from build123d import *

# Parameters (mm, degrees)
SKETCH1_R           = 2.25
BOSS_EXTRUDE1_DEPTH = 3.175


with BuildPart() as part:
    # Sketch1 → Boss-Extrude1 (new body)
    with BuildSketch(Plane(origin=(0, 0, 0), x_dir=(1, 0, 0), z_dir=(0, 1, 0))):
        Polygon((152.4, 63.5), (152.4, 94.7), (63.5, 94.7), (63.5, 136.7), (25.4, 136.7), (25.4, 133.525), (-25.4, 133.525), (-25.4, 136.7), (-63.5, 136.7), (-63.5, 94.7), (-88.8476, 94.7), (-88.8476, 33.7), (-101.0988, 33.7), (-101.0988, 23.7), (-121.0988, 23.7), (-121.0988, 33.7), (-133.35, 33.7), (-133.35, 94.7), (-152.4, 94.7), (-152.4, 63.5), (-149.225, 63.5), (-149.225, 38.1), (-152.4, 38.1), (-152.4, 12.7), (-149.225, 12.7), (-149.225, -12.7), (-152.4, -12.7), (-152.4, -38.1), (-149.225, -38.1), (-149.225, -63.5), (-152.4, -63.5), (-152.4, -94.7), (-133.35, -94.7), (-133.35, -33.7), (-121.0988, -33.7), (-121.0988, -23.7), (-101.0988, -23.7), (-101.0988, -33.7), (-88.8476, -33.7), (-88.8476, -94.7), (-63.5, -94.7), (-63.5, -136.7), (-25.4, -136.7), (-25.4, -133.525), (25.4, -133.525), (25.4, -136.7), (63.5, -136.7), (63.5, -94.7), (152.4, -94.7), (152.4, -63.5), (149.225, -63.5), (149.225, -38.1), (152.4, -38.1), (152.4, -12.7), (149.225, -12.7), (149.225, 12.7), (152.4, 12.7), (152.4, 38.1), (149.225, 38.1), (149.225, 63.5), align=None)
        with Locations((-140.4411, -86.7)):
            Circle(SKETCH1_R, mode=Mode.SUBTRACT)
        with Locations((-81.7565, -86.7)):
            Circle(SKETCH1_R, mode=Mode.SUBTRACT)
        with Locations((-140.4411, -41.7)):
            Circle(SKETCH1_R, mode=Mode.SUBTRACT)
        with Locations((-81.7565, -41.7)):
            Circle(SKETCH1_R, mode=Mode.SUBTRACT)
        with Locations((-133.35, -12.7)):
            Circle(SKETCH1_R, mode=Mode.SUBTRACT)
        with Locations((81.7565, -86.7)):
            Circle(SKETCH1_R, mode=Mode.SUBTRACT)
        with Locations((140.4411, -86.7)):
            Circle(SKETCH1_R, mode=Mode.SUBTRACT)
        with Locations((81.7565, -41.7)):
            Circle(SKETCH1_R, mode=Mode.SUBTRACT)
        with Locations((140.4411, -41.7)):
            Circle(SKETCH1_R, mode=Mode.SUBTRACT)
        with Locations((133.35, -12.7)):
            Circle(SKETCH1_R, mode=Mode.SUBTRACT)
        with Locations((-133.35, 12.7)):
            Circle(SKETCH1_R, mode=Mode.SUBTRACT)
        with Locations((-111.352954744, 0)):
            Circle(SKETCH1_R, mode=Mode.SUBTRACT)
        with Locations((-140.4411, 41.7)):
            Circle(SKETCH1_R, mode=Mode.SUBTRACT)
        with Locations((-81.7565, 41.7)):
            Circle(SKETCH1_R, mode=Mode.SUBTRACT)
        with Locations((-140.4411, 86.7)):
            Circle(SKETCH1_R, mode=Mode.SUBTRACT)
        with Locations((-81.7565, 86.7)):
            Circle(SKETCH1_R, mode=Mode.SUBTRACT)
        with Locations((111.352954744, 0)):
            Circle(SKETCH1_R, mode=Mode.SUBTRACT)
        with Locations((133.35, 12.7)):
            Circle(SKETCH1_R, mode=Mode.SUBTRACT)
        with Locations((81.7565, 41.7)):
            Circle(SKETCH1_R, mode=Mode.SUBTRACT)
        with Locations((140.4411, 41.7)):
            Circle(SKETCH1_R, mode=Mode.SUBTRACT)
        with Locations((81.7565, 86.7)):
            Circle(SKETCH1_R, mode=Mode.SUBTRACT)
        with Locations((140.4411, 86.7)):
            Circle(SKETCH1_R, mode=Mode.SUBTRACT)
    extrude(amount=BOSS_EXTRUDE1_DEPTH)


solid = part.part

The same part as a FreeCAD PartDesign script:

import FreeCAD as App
import Part
import Sketcher
Q = App.Units.Quantity

doc = App.newDocument("Part")
params = doc.addObject("Spreadsheet::Sheet", "Params")
for row, (alias, value) in enumerate([
    ("sketch1_diameter", "4.5 mm"),
    ("sketch1_width", "20 mm"),
    ("sketch1_height", "42 mm"),
    ("sketch1_height2", "61 mm"),
    ("sketch1_height3", "10 mm"),
    ("pad1_length", "3.175 mm"),
], start=1):
    params.set(f"A{row}", alias)
    params.set(f"B{row}", "=" + value)
    params.setAlias(f"B{row}", alias)

body = doc.addObject("PartDesign::Body", "Body")

# Sketch on XZ plane
sketch1 = body.newObject("Sketcher::SketchObject", "Sketch")
sketch1.AttachmentSupport = (doc.getObject("XZ_Plane"), [""])
sketch1.MapMode = "FlatFace"
sketch1.addGeometry(Part.LineSegment(App.Vector(152.4, -63.5, 0), App.Vector(152.4, -94.7, 0)), False)
sketch1.addGeometry(Part.LineSegment(App.Vector(152.4, -94.7, 0), App.Vector(63.5, -94.7, 0)), False)
sketch1.addGeometry(Part.LineSegment(App.Vector(63.5, -94.7, 0), App.Vector(63.5, -136.7, 0)), False)
sketch1.addGeometry(Part.LineSegment(App.Vector(63.5, -136.7, 0), App.Vector(25.4, -136.7, 0)), False)
sketch1.addGeometry(Part.LineSegment(App.Vector(25.4, -136.7, 0), App.Vector(25.4, -133.5, 0)), False)
sketch1.addGeometry(Part.LineSegment(App.Vector(25.4, -133.5, 0), App.Vector(-25.4, -133.5, 0)), False)
sketch1.addGeometry(Part.LineSegment(App.Vector(-25.4, -133.5, 0), App.Vector(-25.4, -136.7, 0)), False)
sketch1.addGeometry(Part.LineSegment(App.Vector(-25.4, -136.7, 0), App.Vector(-63.5, -136.7, 0)), False)
sketch1.addGeometry(Part.LineSegment(App.Vector(-63.5, -136.7, 0), App.Vector(-63.5, -94.7, 0)), False)
sketch1.addGeometry(Part.LineSegment(App.Vector(-63.5, -94.7, 0), App.Vector(-88.8, -94.7, 0)), False)
sketch1.addGeometry(Part.LineSegment(App.Vector(-88.8, -94.7, 0), App.Vector(-88.8, -33.7, 0)), False)
sketch1.addGeometry(Part.LineSegment(App.Vector(-88.8, -33.7, 0), App.Vector(-101.1, -33.7, 0)), False)
sketch1.addGeometry(Part.LineSegment(App.Vector(-101.1, -33.7, 0), App.Vector(-101.1, -23.7, 0)), False)
sketch1.addGeometry(Part.LineSegment(App.Vector(-101.1, -23.7, 0), App.Vector(-121.1, -23.7, 0)), False)
sketch1.addGeometry(Part.LineSegment(App.Vector(-121.1, -23.7, 0), App.Vector(-121.1, -33.7, 0)), False)
sketch1.addGeometry(Part.LineSegment(App.Vector(-121.1, -33.7, 0), App.Vector(-133.3, -33.7, 0)), False)
sketch1.addGeometry(Part.LineSegment(App.Vector(-133.3, -33.7, 0), App.Vector(-133.3, -94.7, 0)), False)
sketch1.addGeometry(Part.LineSegment(App.Vector(-133.3, -94.7, 0), App.Vector(-152.4, -94.7, 0)), False)
sketch1.addGeometry(Part.LineSegment(App.Vector(-152.4, -94.7, 0), App.Vector(-152.4, -63.5, 0)), False)
sketch1.addGeometry(Part.LineSegment(App.Vector(-152.4, -63.5, 0), App.Vector(-149.2, -63.5, 0)), False)
sketch1.addGeometry(Part.LineSegment(App.Vector(-149.2, -63.5, 0), App.Vector(-149.2, -38.1, 0)), False)
sketch1.addGeometry(Part.LineSegment(App.Vector(-149.2, -38.1, 0), App.Vector(-152.4, -38.1, 0)), False)
sketch1.addGeometry(Part.LineSegment(App.Vector(-152.4, -38.1, 0), App.Vector(-152.4, -12.7, 0)), False)
sketch1.addGeometry(Part.LineSegment(App.Vector(-152.4, -12.7, 0), App.Vector(-149.2, -12.7, 0)), False)
sketch1.addGeometry(Part.LineSegment(App.Vector(-149.2, -12.7, 0), App.Vector(-149.2, 12.7, 0)), False)
sketch1.addGeometry(Part.LineSegment(App.Vector(-149.2, 12.7, 0), App.Vector(-152.4, 12.7, 0)), False)
sketch1.addGeometry(Part.LineSegment(App.Vector(-152.4, 12.7, 0), App.Vector(-152.4, 38.1, 0)), False)
sketch1.addGeometry(Part.LineSegment(App.Vector(-152.4, 38.1, 0), App.Vector(-149.2, 38.1, 0)), False)
sketch1.addGeometry(Part.LineSegment(App.Vector(-149.2, 38.1, 0), App.Vector(-149.2, 63.5, 0)), False)
sketch1.addGeometry(Part.LineSegment(App.Vector(-149.2, 63.5, 0), App.Vector(-152.4, 63.5, 0)), False)
sketch1.addGeometry(Part.LineSegment(App.Vector(-152.4, 63.5, 0), App.Vector(-152.4, 94.7, 0)), False)
sketch1.addGeometry(Part.LineSegment(App.Vector(-152.4, 94.7, 0), App.Vector(-133.3, 94.7, 0)), False)
sketch1.addGeometry(Part.LineSegment(App.Vector(-133.3, 94.7, 0), App.Vector(-133.3, 33.7, 0)), False)
sketch1.addGeometry(Part.LineSegment(App.Vector(-133.3, 33.7, 0), App.Vector(-121.1, 33.7, 0)), False)
sketch1.addGeometry(Part.LineSegment(App.Vector(-121.1, 33.7, 0), App.Vector(-121.1, 23.7, 0)), False)
sketch1.addGeometry(Part.LineSegment(App.Vector(-121.1, 23.7, 0), App.Vector(-101.1, 23.7, 0)), False)
sketch1.addGeometry(Part.LineSegment(App.Vector(-101.1, 23.7, 0), App.Vector(-101.1, 33.7, 0)), False)
sketch1.addGeometry(Part.LineSegment(App.Vector(-101.1, 33.7, 0), App.Vector(-88.8, 33.7, 0)), False)
sketch1.addGeometry(Part.LineSegment(App.Vector(-88.8, 33.7, 0), App.Vector(-88.8, 94.7, 0)), False)
sketch1.addGeometry(Part.LineSegment(App.Vector(-88.8, 94.7, 0), App.Vector(-63.5, 94.7, 0)), False)
sketch1.addGeometry(Part.LineSegment(App.Vector(-63.5, 94.7, 0), App.Vector(-63.5, 136.7, 0)), False)
sketch1.addGeometry(Part.LineSegment(App.Vector(-63.5, 136.7, 0), App.Vector(-25.4, 136.7, 0)), False)
sketch1.addGeometry(Part.LineSegment(App.Vector(-25.4, 136.7, 0), App.Vector(-25.4, 133.5, 0)), False)
sketch1.addGeometry(Part.LineSegment(App.Vector(-25.4, 133.5, 0), App.Vector(25.4, 133.5, 0)), False)
sketch1.addGeometry(Part.LineSegment(App.Vector(25.4, 133.5, 0), App.Vector(25.4, 136.7, 0)), False)
sketch1.addGeometry(Part.LineSegment(App.Vector(25.4, 136.7, 0), App.Vector(63.5, 136.7, 0)), False)
sketch1.addGeometry(Part.LineSegment(App.Vector(63.5, 136.7, 0), App.Vector(63.5, 94.7, 0)), False)
sketch1.addGeometry(Part.LineSegment(App.Vector(63.5, 94.7, 0), App.Vector(152.4, 94.7, 0)), False)
sketch1.addGeometry(Part.LineSegment(App.Vector(152.4, 94.7, 0), App.Vector(152.4, 63.5, 0)), False)
sketch1.addGeometry(Part.LineSegment(App.Vector(152.4, 63.5, 0), App.Vector(149.2, 63.5, 0)), False)
sketch1.addGeometry(Part.LineSegment(App.Vector(149.2, 63.5, 0), App.Vector(149.2, 38.1, 0)), False)
sketch1.addGeometry(Part.LineSegment(App.Vector(149.2, 38.1, 0), App.Vector(152.4, 38.1, 0)), False)
sketch1.addGeometry(Part.LineSegment(App.Vector(152.4, 38.1, 0), App.Vector(152.4, 12.7, 0)), False)
sketch1.addGeometry(Part.LineSegment(App.Vector(152.4, 12.7, 0), App.Vector(149.2, 12.7, 0)), False)
sketch1.addGeometry(Part.LineSegment(App.Vector(149.2, 12.7, 0), App.Vector(149.2, -12.7, 0)), False)
sketch1.addGeometry(Part.LineSegment(App.Vector(149.2, -12.7, 0), App.Vector(152.4, -12.7, 0)), False)
sketch1.addGeometry(Part.LineSegment(App.Vector(152.4, -12.7, 0), App.Vector(152.4, -38.1, 0)), False)
sketch1.addGeometry(Part.LineSegment(App.Vector(152.4, -38.1, 0), App.Vector(149.2, -38.1, 0)), False)
sketch1.addGeometry(Part.LineSegment(App.Vector(149.2, -38.1, 0), App.Vector(149.2, -63.5, 0)), False)
sketch1.addGeometry(Part.LineSegment(App.Vector(149.2, -63.5, 0), App.Vector(152.4, -63.5, 0)), False)
sketch1.addGeometry(Part.Circle(App.Vector(-140.4, 86.7, 0), App.Vector(0, 0, 1), 2.2), False)
sketch1.addGeometry(Part.Circle(App.Vector(-81.8, 86.7, 0), App.Vector(0, 0, 1), 2.2), False)
sketch1.addGeometry(Part.Circle(App.Vector(-140.4, 41.7, 0), App.Vector(0, 0, 1), 2.2), False)
sketch1.addGeometry(Part.Circle(App.Vector(-81.8, 41.7, 0), App.Vector(0, 0, 1), 2.2), False)
sketch1.addGeometry(Part.Circle(App.Vector(-133.3, 12.7, 0), App.Vector(0, 0, 1), 2.2), False)
sketch1.addGeometry(Part.Circle(App.Vector(-111.4, 0, 0), App.Vector(0, 0, 1), 2.2), False)
sketch1.addGeometry(Part.Circle(App.Vector(81.8, 86.7, 0), App.Vector(0, 0, 1), 2.2), False)
sketch1.addGeometry(Part.Circle(App.Vector(140.4, 86.7, 0), App.Vector(0, 0, 1), 2.2), False)
sketch1.addGeometry(Part.Circle(App.Vector(81.8, 41.7, 0), App.Vector(0, 0, 1), 2.2), False)
sketch1.addGeometry(Part.Circle(App.Vector(140.4, 41.7, 0), App.Vector(0, 0, 1), 2.2), False)
sketch1.addGeometry(Part.Circle(App.Vector(133.3, 12.7, 0), App.Vector(0, 0, 1), 2.2), False)
sketch1.addGeometry(Part.Circle(App.Vector(111.4, 0, 0), App.Vector(0, 0, 1), 2.2), False)
sketch1.addGeometry(Part.Circle(App.Vector(-133.3, -12.7, 0), App.Vector(0, 0, 1), 2.2), False)
sketch1.addGeometry(Part.Circle(App.Vector(-140.4, -41.7, 0), App.Vector(0, 0, 1), 2.2), False)
sketch1.addGeometry(Part.Circle(App.Vector(-81.8, -41.7, 0), App.Vector(0, 0, 1), 2.2), False)
sketch1.addGeometry(Part.Circle(App.Vector(-140.4, -86.7, 0), App.Vector(0, 0, 1), 2.2), False)
sketch1.addGeometry(Part.Circle(App.Vector(-81.8, -86.7, 0), App.Vector(0, 0, 1), 2.2), False)
sketch1.addGeometry(Part.Circle(App.Vector(133.3, -12.7, 0), App.Vector(0, 0, 1), 2.2), False)
sketch1.addGeometry(Part.Circle(App.Vector(81.8, -41.7, 0), App.Vector(0, 0, 1), 2.2), False)
sketch1.addGeometry(Part.Circle(App.Vector(140.4, -41.7, 0), App.Vector(0, 0, 1), 2.2), False)
sketch1.addGeometry(Part.Circle(App.Vector(81.8, -86.7, 0), App.Vector(0, 0, 1), 2.2), False)
sketch1.addGeometry(Part.Circle(App.Vector(140.4, -86.7, 0), App.Vector(0, 0, 1), 2.2), False)
sketch1.addConstraint(Sketcher.Constraint("Coincident", 0, 2, 1, 1))
sketch1.addConstraint(Sketcher.Constraint("Coincident", 1, 2, 2, 1))
sketch1.addConstraint(Sketcher.Constraint("Coincident", 2, 2, 3, 1))
sketch1.addConstraint(Sketcher.Constraint("Coincident", 3, 2, 4, 1))
sketch1.addConstraint(Sketcher.Constraint("Coincident", 4, 2, 5, 1))
sketch1.addConstraint(Sketcher.Constraint("Coincident", 5, 2, 6, 1))
sketch1.addConstraint(Sketcher.Constraint("Coincident", 6, 2, 7, 1))
sketch1.addConstraint(Sketcher.Constraint("Coincident", 7, 2, 8, 1))
sketch1.addConstraint(Sketcher.Constraint("Coincident", 8, 2, 9, 1))
sketch1.addConstraint(Sketcher.Constraint("Coincident", 9, 2, 10, 1))
sketch1.addConstraint(Sketcher.Constraint("Coincident", 10, 2, 11, 1))
sketch1.addConstraint(Sketcher.Constraint("Coincident", 11, 2, 12, 1))
sketch1.addConstraint(Sketcher.Constraint("Coincident", 12, 2, 13, 1))
sketch1.addConstraint(Sketcher.Constraint("Coincident", 13, 2, 14, 1))
sketch1.addConstraint(Sketcher.Constraint("Coincident", 14, 2, 15, 1))
sketch1.addConstraint(Sketcher.Constraint("Coincident", 15, 2, 16, 1))
sketch1.addConstraint(Sketcher.Constraint("Coincident", 16, 2, 17, 1))
sketch1.addConstraint(Sketcher.Constraint("Coincident", 17, 2, 18, 1))
sketch1.addConstraint(Sketcher.Constraint("Coincident", 18, 2, 19, 1))
sketch1.addConstraint(Sketcher.Constraint("Coincident", 19, 2, 20, 1))
sketch1.addConstraint(Sketcher.Constraint("Coincident", 20, 2, 21, 1))
sketch1.addConstraint(Sketcher.Constraint("Coincident", 21, 2, 22, 1))
sketch1.addConstraint(Sketcher.Constraint("Coincident", 22, 2, 23, 1))
sketch1.addConstraint(Sketcher.Constraint("Coincident", 23, 2, 24, 1))
sketch1.addConstraint(Sketcher.Constraint("Coincident", 24, 2, 25, 1))
sketch1.addConstraint(Sketcher.Constraint("Coincident", 25, 2, 26, 1))
sketch1.addConstraint(Sketcher.Constraint("Coincident", 26, 2, 27, 1))
sketch1.addConstraint(Sketcher.Constraint("Coincident", 27, 2, 28, 1))
sketch1.addConstraint(Sketcher.Constraint("Coincident", 28, 2, 29, 1))
sketch1.addConstraint(Sketcher.Constraint("Coincident", 29, 2, 30, 1))
sketch1.addConstraint(Sketcher.Constraint("Coincident", 30, 2, 31, 1))
sketch1.addConstraint(Sketcher.Constraint("Coincident", 31, 2, 32, 1))
sketch1.addConstraint(Sketcher.Constraint("Coincident", 32, 2, 33, 1))
sketch1.addConstraint(Sketcher.Constraint("Coincident", 33, 2, 34, 1))
sketch1.addConstraint(Sketcher.Constraint("Coincident", 34, 2, 35, 1))
sketch1.addConstraint(Sketcher.Constraint("Coincident", 35, 2, 36, 1))
sketch1.addConstraint(Sketcher.Constraint("Coincident", 36, 2, 37, 1))
sketch1.addConstraint(Sketcher.Constraint("Coincident", 37, 2, 38, 1))
sketch1.addConstraint(Sketcher.Constraint("Coincident", 38, 2, 39, 1))
sketch1.addConstraint(Sketcher.Constraint("Coincident", 39, 2, 40, 1))
sketch1.addConstraint(Sketcher.Constraint("Coincident", 40, 2, 41, 1))
sketch1.addConstraint(Sketcher.Constraint("Coincident", 41, 2, 42, 1))
sketch1.addConstraint(Sketcher.Constraint("Coincident", 42, 2, 43, 1))
sketch1.addConstraint(Sketcher.Constraint("Coincident", 43, 2, 44, 1))
sketch1.addConstraint(Sketcher.Constraint("Coincident", 44, 2, 45, 1))
sketch1.addConstraint(Sketcher.Constraint("Coincident", 45, 2, 46, 1))
sketch1.addConstraint(Sketcher.Constraint("Coincident", 46, 2, 47, 1))
sketch1.addConstraint(Sketcher.Constraint("Coincident", 47, 2, 48, 1))
sketch1.addConstraint(Sketcher.Constraint("Coincident", 48, 2, 49, 1))
sketch1.addConstraint(Sketcher.Constraint("Coincident", 49, 2, 50, 1))
sketch1.addConstraint(Sketcher.Constraint("Coincident", 50, 2, 51, 1))
sketch1.addConstraint(Sketcher.Constraint("Coincident", 51, 2, 52, 1))
sketch1.addConstraint(Sketcher.Constraint("Coincident", 52, 2, 53, 1))
sketch1.addConstraint(Sketcher.Constraint("Coincident", 53, 2, 54, 1))
sketch1.addConstraint(Sketcher.Constraint("Coincident", 54, 2, 55, 1))
sketch1.addConstraint(Sketcher.Constraint("Coincident", 55, 2, 56, 1))
sketch1.addConstraint(Sketcher.Constraint("Coincident", 56, 2, 57, 1))
sketch1.addConstraint(Sketcher.Constraint("Coincident", 57, 2, 58, 1))
sketch1.addConstraint(Sketcher.Constraint("Coincident", 58, 2, 59, 1))
sketch1.addConstraint(Sketcher.Constraint("Coincident", 59, 2, 0, 1))
sketch1.addConstraint(Sketcher.Constraint("Vertical", 0))
sketch1.addConstraint(Sketcher.Constraint("Horizontal", 1))
sketch1.addConstraint(Sketcher.Constraint("Vertical", 2))
sketch1.addConstraint(Sketcher.Constraint("Horizontal", 3))
sketch1.addConstraint(Sketcher.Constraint("Vertical", 4))
sketch1.addConstraint(Sketcher.Constraint("Horizontal", 5))
sketch1.addConstraint(Sketcher.Constraint("Vertical", 6))
sketch1.addConstraint(Sketcher.Constraint("Horizontal", 7))
sketch1.addConstraint(Sketcher.Constraint("Vertical", 8))
sketch1.addConstraint(Sketcher.Constraint("Horizontal", 9))
sketch1.addConstraint(Sketcher.Constraint("Vertical", 10))
sketch1.addConstraint(Sketcher.Constraint("Horizontal", 11))
sketch1.addConstraint(Sketcher.Constraint("Vertical", 12))
sketch1.addConstraint(Sketcher.Constraint("Horizontal", 13))
sketch1.addConstraint(Sketcher.Constraint("Vertical", 14))
sketch1.addConstraint(Sketcher.Constraint("Horizontal", 15))
sketch1.addConstraint(Sketcher.Constraint("Vertical", 16))
sketch1.addConstraint(Sketcher.Constraint("Horizontal", 17))
sketch1.addConstraint(Sketcher.Constraint("Vertical", 18))
sketch1.addConstraint(Sketcher.Constraint("Horizontal", 19))
sketch1.addConstraint(Sketcher.Constraint("Vertical", 20))
sketch1.addConstraint(Sketcher.Constraint("Horizontal", 21))
sketch1.addConstraint(Sketcher.Constraint("Vertical", 22))
sketch1.addConstraint(Sketcher.Constraint("Horizontal", 23))
sketch1.addConstraint(Sketcher.Constraint("Vertical", 24))
sketch1.addConstraint(Sketcher.Constraint("Horizontal", 25))
sketch1.addConstraint(Sketcher.Constraint("Vertical", 26))
sketch1.addConstraint(Sketcher.Constraint("Horizontal", 27))
sketch1.addConstraint(Sketcher.Constraint("Vertical", 28))
sketch1.addConstraint(Sketcher.Constraint("Horizontal", 29))
sketch1.addConstraint(Sketcher.Constraint("Vertical", 30))
sketch1.addConstraint(Sketcher.Constraint("Horizontal", 31))
sketch1.addConstraint(Sketcher.Constraint("Vertical", 32))
sketch1.addConstraint(Sketcher.Constraint("Horizontal", 33))
sketch1.addConstraint(Sketcher.Constraint("Vertical", 34))
sketch1.addConstraint(Sketcher.Constraint("Horizontal", 35))
sketch1.addConstraint(Sketcher.Constraint("Vertical", 36))
sketch1.addConstraint(Sketcher.Constraint("Horizontal", 37))
sketch1.addConstraint(Sketcher.Constraint("Vertical", 38))
sketch1.addConstraint(Sketcher.Constraint("Horizontal", 39))
sketch1.addConstraint(Sketcher.Constraint("Vertical", 40))
sketch1.addConstraint(Sketcher.Constraint("Horizontal", 41))
sketch1.addConstraint(Sketcher.Constraint("Vertical", 42))
sketch1.addConstraint(Sketcher.Constraint("Horizontal", 43))
sketch1.addConstraint(Sketcher.Constraint("Vertical", 44))
sketch1.addConstraint(Sketcher.Constraint("Horizontal", 45))
sketch1.addConstraint(Sketcher.Constraint("Vertical", 46))
sketch1.addConstraint(Sketcher.Constraint("Horizontal", 47))
sketch1.addConstraint(Sketcher.Constraint("Vertical", 48))
sketch1.addConstraint(Sketcher.Constraint("Horizontal", 49))
sketch1.addConstraint(Sketcher.Constraint("Vertical", 50))
sketch1.addConstraint(Sketcher.Constraint("Horizontal", 51))
sketch1.addConstraint(Sketcher.Constraint("Vertical", 52))
sketch1.addConstraint(Sketcher.Constraint("Horizontal", 53))
sketch1.addConstraint(Sketcher.Constraint("Vertical", 54))
sketch1.addConstraint(Sketcher.Constraint("Horizontal", 55))
sketch1.addConstraint(Sketcher.Constraint("Vertical", 56))
sketch1.addConstraint(Sketcher.Constraint("Horizontal", 57))
sketch1.addConstraint(Sketcher.Constraint("Vertical", 58))
sketch1.addConstraint(Sketcher.Constraint("Horizontal", 59))
sketch1.addConstraint(Sketcher.Constraint("Equal", 60, 61))
sketch1.addConstraint(Sketcher.Constraint("Equal", 61, 62))
sketch1.addConstraint(Sketcher.Constraint("Equal", 62, 63))
sketch1.addConstraint(Sketcher.Constraint("Equal", 63, 64))
sketch1.addConstraint(Sketcher.Constraint("Equal", 64, 65))
sketch1.addConstraint(Sketcher.Constraint("Equal", 65, 66))
sketch1.addConstraint(Sketcher.Constraint("Equal", 66, 67))
sketch1.addConstraint(Sketcher.Constraint("Equal", 67, 68))
sketch1.addConstraint(Sketcher.Constraint("Equal", 68, 69))
sketch1.addConstraint(Sketcher.Constraint("Equal", 69, 70))
sketch1.addConstraint(Sketcher.Constraint("Equal", 70, 71))
sketch1.addConstraint(Sketcher.Constraint("Equal", 71, 72))
sketch1.addConstraint(Sketcher.Constraint("Equal", 72, 73))
sketch1.addConstraint(Sketcher.Constraint("Equal", 73, 74))
sketch1.addConstraint(Sketcher.Constraint("Equal", 74, 75))
sketch1.addConstraint(Sketcher.Constraint("Equal", 75, 76))
sketch1.addConstraint(Sketcher.Constraint("Equal", 76, 77))
sketch1.addConstraint(Sketcher.Constraint("Equal", 77, 78))
sketch1.addConstraint(Sketcher.Constraint("Equal", 78, 79))
sketch1.addConstraint(Sketcher.Constraint("Equal", 79, 80))
sketch1.addConstraint(Sketcher.Constraint("Equal", 80, 81))
sketch1.addConstraint(Sketcher.Constraint("Symmetric", 65, 3, 71, 3, -1, 1))
sketch1.addConstraint(Sketcher.Constraint("Symmetric", 70, 3, 72, 3, -1, 1))
sketch1.addConstraint(Sketcher.Constraint("Symmetric", 69, 3, 73, 3, -1, 1))
sketch1.addConstraint(Sketcher.Constraint("Symmetric", 68, 3, 74, 3, -1, 1))
sketch1.addConstraint(Sketcher.Constraint("Symmetric", 67, 3, 75, 3, -1, 1))
sketch1.addConstraint(Sketcher.Constraint("Symmetric", 66, 3, 76, 3, -1, 1))
sketch1.addConstraint(Sketcher.Constraint("Symmetric", 64, 3, 77, 3, -1, 1))
sketch1.addConstraint(Sketcher.Constraint("Symmetric", 63, 3, 78, 3, -1, 1))
sketch1.addConstraint(Sketcher.Constraint("Symmetric", 62, 3, 79, 3, -1, 1))
sketch1.addConstraint(Sketcher.Constraint("Symmetric", 61, 3, 80, 3, -1, 1))
sketch1.addConstraint(Sketcher.Constraint("Symmetric", 60, 3, 81, 3, -1, 1))
sketch1.addConstraint(Sketcher.Constraint("Symmetric", 0, 2, 30, 2, -1, 1))
sketch1.addConstraint(Sketcher.Constraint("Symmetric", 1, 2, 39, 2, -1, 1))
sketch1.addConstraint(Sketcher.Constraint("Symmetric", 3, 2, 41, 2, -1, 1))
sketch1.addConstraint(Sketcher.Constraint("Symmetric", 5, 2, 43, 2, -1, 1))
sketch1.addConstraint(Sketcher.Constraint("Symmetric", 7, 2, 45, 2, -1, 1))
sketch1.addConstraint(Sketcher.Constraint("Symmetric", 17, 2, 47, 2, -1, 1))
sketch1.addConstraint(Sketcher.Constraint("Symmetric", 19, 2, 49, 2, -1, 1))
sketch1.addConstraint(Sketcher.Constraint("Symmetric", 21, 2, 51, 2, -1, 1))
sketch1.addConstraint(Sketcher.Constraint("Symmetric", 23, 2, 53, 2, -1, 1))
sketch1.addConstraint(Sketcher.Constraint("Symmetric", 25, 2, 55, 2, -1, 1))
sketch1.addConstraint(Sketcher.Constraint("Symmetric", 27, 2, 57, 2, -1, 1))
sketch1.addConstraint(Sketcher.Constraint("Symmetric", 61, 3, 66, 3, -2))
sketch1.addConstraint(Sketcher.Constraint("Symmetric", 60, 3, 67, 3, -2))
sketch1.addConstraint(Sketcher.Constraint("Symmetric", 63, 3, 68, 3, -2))
sketch1.addConstraint(Sketcher.Constraint("Symmetric", 62, 3, 69, 3, -2))
sketch1.addConstraint(Sketcher.Constraint("Symmetric", 64, 3, 70, 3, -2))
sketch1.addConstraint(Sketcher.Constraint("Symmetric", 3, 2, 6, 2, -2))
sketch1.addConstraint(Sketcher.Constraint("Symmetric", 1, 2, 8, 2, -2))
sketch1.addConstraint(Sketcher.Constraint("Symmetric", 0, 2, 17, 2, -2))
sketch1.addConstraint(Sketcher.Constraint("Symmetric", 28, 2, 49, 2, -2))
sketch1.addConstraint(Sketcher.Constraint("Symmetric", 26, 2, 51, 2, -2))
sketch1.addConstraint(Sketcher.Constraint("Symmetric", 15, 2, 32, 2, -1))
sketch1.addConstraint(Sketcher.Constraint("Symmetric", 13, 2, 34, 2, -1))
sketch1.addConstraint(Sketcher.Constraint("Symmetric", 11, 2, 36, 2, -1))
sketch1.addConstraint(Sketcher.Constraint("PointOnObject", 65, 3, -1))
sketch1.addConstraint(Sketcher.Constraint("Horizontal", 60, 3, 61, 3))
sketch1.addConstraint(Sketcher.Constraint("Horizontal", 62, 3, 63, 3))
sketch1.addConstraint(Sketcher.Constraint("Horizontal", 11, 2, 14, 2))
sketch1.addConstraint(Sketcher.Constraint("Horizontal", 77, 3, 22, 2))
sketch1.addConstraint(Sketcher.Constraint("Horizontal", 70, 3, 24, 2))
sketch1.addConstraint(Sketcher.Constraint("Horizontal", 19, 2, 58, 2))
sketch1.addConstraint(Sketcher.Constraint("Vertical", 60, 3, 62, 3))
sketch1.addConstraint(Sketcher.Constraint("Vertical", 61, 3, 63, 3))
sketch1.addConstraint(Sketcher.Constraint("Vertical", 72, 3, 15, 2))
sketch1.addConstraint(Sketcher.Constraint("Vertical", 18, 2, 21, 2))
sketch1.addConstraint(Sketcher.Constraint("Vertical", 20, 2, 23, 2))
sketch1.addConstraint(Sketcher.Constraint("Vertical", 10, 2, 37, 2))
sketch1.addConstraint(Sketcher.Constraint("Equal", 11, 15))
sketch1.addConstraint(Sketcher.Constraint("Equal", 59, 4))
sketch1.addConstraint(Sketcher.Constraint("Equal", 20, 22))
sketch1.addConstraint(Sketcher.Constraint("Equal", 22, 24))
sketch1.addConstraint(Sketcher.Constraint("Diameter", 60, Q("4.5 mm")))
sketch1.addConstraint(Sketcher.Constraint("DistanceX", 13, 2, 13, 1, Q("20 mm")))
sketch1.addConstraint(Sketcher.Constraint("DistanceY", 2, 2, 2, 1, Q("42 mm")))
sketch1.addConstraint(Sketcher.Constraint("DistanceY", 10, 1, 10, 2, Q("61 mm")))
sketch1.addConstraint(Sketcher.Constraint("DistanceY", 12, 1, 12, 2, Q("10 mm")))
sketch1.addConstraint(Sketcher.Constraint("DistanceX", 1, 2, 1, 1, Q("88.9 mm")))
sketch1.addConstraint(Sketcher.Constraint("DistanceX", 3, 2, 3, 1, Q("38.1 mm")))
sketch1.addConstraint(Sketcher.Constraint("DistanceX", 5, 2, 5, 1, Q("50.8 mm")))
sketch1.addConstraint(Sketcher.Constraint("DistanceY", 0, 2, 0, 1, Q("31.2 mm")))
sketch1.addConstraint(Sketcher.Constraint("DistanceY", 20, 1, 20, 2, Q("25.4 mm")))
sketch1.addConstraint(Sketcher.Constraint("DistanceX", 17, 2, 17, 1, Q("19.05 mm")))
sketch1.addConstraint(Sketcher.Constraint("DistanceY", -1, 1, 60, 3, Q("86.7 mm")))
sketch1.addConstraint(Sketcher.Constraint("DistanceY", -1, 1, 62, 3, Q("41.7 mm")))
sketch1.addConstraint(Sketcher.Constraint("DistanceX", 19, 1, 19, 2, Q("3.175 mm")))
sketch1.addConstraint(Sketcher.Constraint("DistanceX", 9, 2, 9, 1, Q("25.3476 mm")))
sketch1.addConstraint(Sketcher.Constraint("DistanceX", 60, 3, -1, 1, Q("140.4411 mm")))
sketch1.addConstraint(Sketcher.Constraint("DistanceX", 61, 3, -1, 1, Q("81.7565 mm")))
sketch1.addConstraint(Sketcher.Constraint("DistanceX", 65, 3, -1, 1, Q("111.352955 mm")))
sketch1.setExpression("Constraints[193]", "Params.sketch1_diameter")
sketch1.setExpression("Constraints[194]", "Params.sketch1_width")
sketch1.setExpression("Constraints[195]", "Params.sketch1_height")
sketch1.setExpression("Constraints[196]", "Params.sketch1_height2")
sketch1.setExpression("Constraints[197]", "Params.sketch1_height3")
pad1 = body.newObject("PartDesign::Pad", "Pad")
pad1.Profile = sketch1
pad1.setExpression("Length", "Params.pad1_length")
pad1.Reversed = True

doc.recompute()
